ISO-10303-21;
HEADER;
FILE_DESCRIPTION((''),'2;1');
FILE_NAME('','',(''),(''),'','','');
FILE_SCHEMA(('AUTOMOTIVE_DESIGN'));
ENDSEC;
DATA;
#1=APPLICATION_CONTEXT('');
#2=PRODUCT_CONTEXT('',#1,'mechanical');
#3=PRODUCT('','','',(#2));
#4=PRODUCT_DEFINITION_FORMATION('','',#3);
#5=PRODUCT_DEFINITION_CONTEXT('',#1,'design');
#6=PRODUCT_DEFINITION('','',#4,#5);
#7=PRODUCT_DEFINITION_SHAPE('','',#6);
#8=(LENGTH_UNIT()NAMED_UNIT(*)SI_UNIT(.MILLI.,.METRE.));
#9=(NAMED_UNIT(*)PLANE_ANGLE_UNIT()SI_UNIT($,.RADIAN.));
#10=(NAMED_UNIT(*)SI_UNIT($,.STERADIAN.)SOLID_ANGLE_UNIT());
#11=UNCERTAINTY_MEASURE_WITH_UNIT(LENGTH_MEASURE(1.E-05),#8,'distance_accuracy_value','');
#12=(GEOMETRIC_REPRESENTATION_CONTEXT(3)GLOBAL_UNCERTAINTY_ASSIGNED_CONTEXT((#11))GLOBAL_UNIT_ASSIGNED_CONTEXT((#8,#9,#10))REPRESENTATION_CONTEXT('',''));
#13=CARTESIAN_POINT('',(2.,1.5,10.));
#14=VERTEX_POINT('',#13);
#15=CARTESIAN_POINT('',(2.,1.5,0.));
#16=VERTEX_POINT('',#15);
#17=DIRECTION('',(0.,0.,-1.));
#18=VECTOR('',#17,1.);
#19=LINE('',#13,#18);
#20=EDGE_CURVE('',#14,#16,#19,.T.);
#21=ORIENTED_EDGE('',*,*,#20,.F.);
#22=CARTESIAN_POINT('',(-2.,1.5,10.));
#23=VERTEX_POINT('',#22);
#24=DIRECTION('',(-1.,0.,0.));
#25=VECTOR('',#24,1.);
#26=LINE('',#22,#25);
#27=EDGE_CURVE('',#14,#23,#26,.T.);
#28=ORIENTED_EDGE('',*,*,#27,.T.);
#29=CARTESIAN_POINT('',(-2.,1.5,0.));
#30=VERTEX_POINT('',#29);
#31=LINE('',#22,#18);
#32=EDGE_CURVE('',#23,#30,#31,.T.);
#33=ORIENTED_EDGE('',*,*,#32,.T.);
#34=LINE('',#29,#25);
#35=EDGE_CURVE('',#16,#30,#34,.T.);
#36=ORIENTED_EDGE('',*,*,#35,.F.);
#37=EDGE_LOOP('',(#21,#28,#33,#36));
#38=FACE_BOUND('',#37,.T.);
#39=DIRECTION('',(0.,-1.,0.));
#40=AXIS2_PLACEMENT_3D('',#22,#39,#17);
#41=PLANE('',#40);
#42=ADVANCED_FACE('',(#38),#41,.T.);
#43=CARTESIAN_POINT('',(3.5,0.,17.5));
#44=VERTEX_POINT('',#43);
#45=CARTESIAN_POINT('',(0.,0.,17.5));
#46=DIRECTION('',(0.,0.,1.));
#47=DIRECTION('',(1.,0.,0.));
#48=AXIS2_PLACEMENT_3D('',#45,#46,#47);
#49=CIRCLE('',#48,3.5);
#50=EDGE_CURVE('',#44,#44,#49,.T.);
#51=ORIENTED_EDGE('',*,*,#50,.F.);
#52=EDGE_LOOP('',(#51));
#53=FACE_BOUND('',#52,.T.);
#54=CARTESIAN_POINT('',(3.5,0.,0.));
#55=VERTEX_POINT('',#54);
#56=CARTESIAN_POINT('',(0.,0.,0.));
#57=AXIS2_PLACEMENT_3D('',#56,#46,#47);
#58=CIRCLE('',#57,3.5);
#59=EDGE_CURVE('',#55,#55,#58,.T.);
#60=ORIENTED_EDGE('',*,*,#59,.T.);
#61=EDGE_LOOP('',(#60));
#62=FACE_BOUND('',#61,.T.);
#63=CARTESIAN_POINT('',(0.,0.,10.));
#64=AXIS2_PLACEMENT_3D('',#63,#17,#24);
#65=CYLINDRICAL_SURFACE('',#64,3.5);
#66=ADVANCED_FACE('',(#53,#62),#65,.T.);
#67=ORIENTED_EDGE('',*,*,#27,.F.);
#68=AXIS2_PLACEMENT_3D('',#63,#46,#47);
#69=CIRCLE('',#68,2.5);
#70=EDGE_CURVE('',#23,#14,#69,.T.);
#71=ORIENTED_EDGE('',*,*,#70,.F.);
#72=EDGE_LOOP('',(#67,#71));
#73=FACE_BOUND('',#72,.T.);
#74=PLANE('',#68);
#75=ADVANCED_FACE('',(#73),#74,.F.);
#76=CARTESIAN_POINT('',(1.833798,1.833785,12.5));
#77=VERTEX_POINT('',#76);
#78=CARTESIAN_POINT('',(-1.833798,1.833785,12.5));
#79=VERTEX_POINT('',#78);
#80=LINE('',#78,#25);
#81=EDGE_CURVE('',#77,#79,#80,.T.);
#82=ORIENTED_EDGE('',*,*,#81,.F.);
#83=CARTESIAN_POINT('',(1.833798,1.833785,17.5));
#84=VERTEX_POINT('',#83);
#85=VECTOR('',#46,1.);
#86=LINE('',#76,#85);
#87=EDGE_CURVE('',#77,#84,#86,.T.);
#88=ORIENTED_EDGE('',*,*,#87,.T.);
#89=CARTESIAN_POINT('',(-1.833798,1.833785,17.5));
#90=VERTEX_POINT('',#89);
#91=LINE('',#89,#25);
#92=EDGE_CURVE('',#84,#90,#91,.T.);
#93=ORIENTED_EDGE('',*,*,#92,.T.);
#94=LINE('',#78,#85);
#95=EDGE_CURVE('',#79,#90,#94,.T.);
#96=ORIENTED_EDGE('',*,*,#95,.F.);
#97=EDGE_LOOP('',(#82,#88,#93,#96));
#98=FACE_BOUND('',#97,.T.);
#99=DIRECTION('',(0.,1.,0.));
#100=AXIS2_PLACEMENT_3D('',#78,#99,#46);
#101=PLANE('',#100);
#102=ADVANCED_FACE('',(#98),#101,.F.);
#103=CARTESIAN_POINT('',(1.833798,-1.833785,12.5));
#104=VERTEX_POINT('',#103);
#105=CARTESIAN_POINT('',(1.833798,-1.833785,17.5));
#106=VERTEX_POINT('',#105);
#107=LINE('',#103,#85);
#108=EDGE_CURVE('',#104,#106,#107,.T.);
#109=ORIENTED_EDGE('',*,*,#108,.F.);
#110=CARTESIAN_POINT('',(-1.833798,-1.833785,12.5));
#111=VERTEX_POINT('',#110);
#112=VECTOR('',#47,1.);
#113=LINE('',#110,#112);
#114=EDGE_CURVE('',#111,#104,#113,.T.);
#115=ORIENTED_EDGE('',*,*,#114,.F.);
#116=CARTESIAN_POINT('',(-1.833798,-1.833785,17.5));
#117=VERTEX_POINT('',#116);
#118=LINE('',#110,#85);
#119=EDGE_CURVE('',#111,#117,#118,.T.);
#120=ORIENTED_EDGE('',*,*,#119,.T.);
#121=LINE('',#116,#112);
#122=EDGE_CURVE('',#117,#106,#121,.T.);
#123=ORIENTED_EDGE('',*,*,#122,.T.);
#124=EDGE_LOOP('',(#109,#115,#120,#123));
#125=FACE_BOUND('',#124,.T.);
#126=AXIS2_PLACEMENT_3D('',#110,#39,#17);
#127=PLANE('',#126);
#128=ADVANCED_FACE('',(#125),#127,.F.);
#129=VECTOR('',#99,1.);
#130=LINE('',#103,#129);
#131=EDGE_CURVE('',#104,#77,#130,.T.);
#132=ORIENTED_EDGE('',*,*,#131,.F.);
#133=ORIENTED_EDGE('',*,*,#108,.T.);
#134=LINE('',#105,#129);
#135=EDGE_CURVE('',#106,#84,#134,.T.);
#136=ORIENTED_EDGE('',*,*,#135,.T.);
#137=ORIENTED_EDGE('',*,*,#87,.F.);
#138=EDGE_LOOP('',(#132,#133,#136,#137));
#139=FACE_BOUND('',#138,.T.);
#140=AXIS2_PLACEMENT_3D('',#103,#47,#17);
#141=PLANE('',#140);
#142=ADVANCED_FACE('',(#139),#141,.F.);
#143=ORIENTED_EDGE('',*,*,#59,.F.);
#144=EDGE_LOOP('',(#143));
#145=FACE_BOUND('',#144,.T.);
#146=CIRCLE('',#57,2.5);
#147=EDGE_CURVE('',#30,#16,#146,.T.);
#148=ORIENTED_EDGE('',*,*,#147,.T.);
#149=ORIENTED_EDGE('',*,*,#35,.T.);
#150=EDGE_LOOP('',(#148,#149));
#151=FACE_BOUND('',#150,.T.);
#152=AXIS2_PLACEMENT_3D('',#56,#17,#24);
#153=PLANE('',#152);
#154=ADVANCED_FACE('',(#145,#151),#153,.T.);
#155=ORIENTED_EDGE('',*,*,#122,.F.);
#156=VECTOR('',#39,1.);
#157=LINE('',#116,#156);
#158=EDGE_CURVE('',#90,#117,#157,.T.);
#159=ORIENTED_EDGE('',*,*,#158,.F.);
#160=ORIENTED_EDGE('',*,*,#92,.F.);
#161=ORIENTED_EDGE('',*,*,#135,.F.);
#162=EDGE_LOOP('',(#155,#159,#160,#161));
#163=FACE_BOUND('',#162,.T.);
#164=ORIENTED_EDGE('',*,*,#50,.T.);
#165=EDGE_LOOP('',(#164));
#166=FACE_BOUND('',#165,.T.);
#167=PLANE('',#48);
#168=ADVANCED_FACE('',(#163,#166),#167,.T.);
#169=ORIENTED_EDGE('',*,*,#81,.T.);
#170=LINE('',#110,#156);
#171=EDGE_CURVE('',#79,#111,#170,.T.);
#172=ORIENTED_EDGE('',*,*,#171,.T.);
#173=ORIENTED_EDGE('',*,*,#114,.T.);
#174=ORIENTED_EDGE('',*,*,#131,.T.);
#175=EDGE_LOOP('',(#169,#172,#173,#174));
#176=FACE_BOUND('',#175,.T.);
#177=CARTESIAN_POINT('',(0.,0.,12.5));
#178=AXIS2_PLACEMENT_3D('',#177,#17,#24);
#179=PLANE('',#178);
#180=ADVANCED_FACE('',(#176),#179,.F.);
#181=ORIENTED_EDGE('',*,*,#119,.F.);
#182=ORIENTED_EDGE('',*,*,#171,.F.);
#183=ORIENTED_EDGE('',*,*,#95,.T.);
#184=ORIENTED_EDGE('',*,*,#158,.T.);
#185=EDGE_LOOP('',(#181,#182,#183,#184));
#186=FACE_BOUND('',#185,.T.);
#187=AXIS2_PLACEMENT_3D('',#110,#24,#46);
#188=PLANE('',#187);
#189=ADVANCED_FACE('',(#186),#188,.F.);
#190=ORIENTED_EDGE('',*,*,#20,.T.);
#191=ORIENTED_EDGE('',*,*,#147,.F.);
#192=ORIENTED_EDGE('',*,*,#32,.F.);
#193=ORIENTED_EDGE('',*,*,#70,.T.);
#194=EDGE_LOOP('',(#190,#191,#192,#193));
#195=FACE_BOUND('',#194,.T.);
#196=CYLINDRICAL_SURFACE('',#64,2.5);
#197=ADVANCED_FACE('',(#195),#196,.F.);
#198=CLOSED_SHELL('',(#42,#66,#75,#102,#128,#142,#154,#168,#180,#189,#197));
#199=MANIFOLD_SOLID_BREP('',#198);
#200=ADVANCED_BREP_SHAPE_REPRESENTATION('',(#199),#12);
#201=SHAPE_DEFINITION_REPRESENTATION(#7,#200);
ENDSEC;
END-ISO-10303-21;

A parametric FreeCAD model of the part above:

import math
import FreeCAD as App
import Part
import Sketcher
from FreeCAD import Vector
Q = App.Units.Quantity

doc = App.newDocument("Part")
body = doc.addObject("PartDesign::Body", "Body")

# Sketch on XY plane
sketch1 = body.newObject("Sketcher::SketchObject", "Sketch")
sketch1.AttachmentSupport = (doc.getObject("XY_Plane"), [""])
sketch1.MapMode = "FlatFace"
sketch1.addGeometry([
    Part.ArcOfCircle(Part.Circle(Vector(0, 0, 0), Vector(0, 0, 1), 3.5), math.radians(134), math.radians(406)),
    Part.ArcOfCircle(Part.Circle(Vector(0, 0, 0), Vector(0, 0, 1), 3.5), math.radians(46), math.radians(134)),
    Part.ArcOfCircle(Part.Circle(Vector(0, 0, 0), Vector(0, 0, 1), 2.5), math.radians(143), math.radians(397)),
    Part.LineSegment(Vector(-2, 1.5, 0), Vector(2, 1.5, 0)),
], False)
sketch1.addConstraint([
    Sketcher.Constraint("Tangent", 0, 1, 1, 2),
    Sketcher.Constraint("Coincident", 1, 1, 0, 2),
    Sketcher.Constraint("Coincident", 2, 1, 3, 1),
    Sketcher.Constraint("Coincident", 3, 2, 2, 2),
    Sketcher.Constraint("Horizontal", 3),
    Sketcher.Constraint("Coincident", 0, 3, -1, 1),
    Sketcher.Constraint("Coincident", 2, 3, -1, 1),
    Sketcher.Constraint("Horizontal", 0, 1, 1, 1),
    Sketcher.Constraint("Radius", 0, Q("3.5 mm")),
    Sketcher.Constraint("Radius", 2, Q("2.5 mm")),
    Sketcher.Constraint("DistanceX", 3, 1, 3, 2, Q("4 mm")),
    Sketcher.Constraint("DistanceY", 2, 1, 0, 1, Q("1 mm")),
])
pad1 = body.newObject("PartDesign::Pad", "Pad")
pad1.Profile = sketch1
pad1.Length = 10

# Sketch on XY plane
sketch2 = body.newObject("Sketcher::SketchObject", "Sketch001")
sketch2.AttachmentSupport = (doc.getObject("XY_Plane"), [""])
sketch2.MapMode = "FlatFace"
sketch2.AttachmentOffset = App.Placement(Vector(0, 0, 10), App.Rotation())
sketch2.addGeometry(Part.Circle(Vector(0, 0, 0), Vector(0, 0, 1), 3.5), False)
sketch2.addConstraint([
    Sketcher.Constraint("Coincident", 0, 3, -1, 1),
    Sketcher.Constraint("Diameter", 0, Q("7 mm")),
])
pad2 = body.newObject("PartDesign::Pad", "Pad001")
pad2.Profile = sketch2
pad2.Length = 7.5

# Sketch on XY plane
sketch3 = body.newObject("Sketcher::SketchObject", "Sketch002")
sketch3.AttachmentSupport = (doc.getObject("XY_Plane"), [""])
sketch3.MapMode = "FlatFace"
sketch3.AttachmentOffset = App.Placement(Vector(0, 0, 17.5), App.Rotation())
sketch3.addGeometry([
    Part.LineSegment(Vector(-1.8, 1.8, 0), Vector(-1.8, -1.8, 0)),
    Part.LineSegment(Vector(-1.8, -1.8, 0), Vector(1.8, -1.8, 0)),
    Part.LineSegment(Vector(1.8, -1.8, 0), Vector(1.8, 1.8, 0)),
    Part.LineSegment(Vector(1.8, 1.8, 0), Vector(-1.8, 1.8, 0)),
], False)
sketch3.addConstraint([
    Sketcher.Constraint("Coincident", 0, 2, 1, 1),
    Sketcher.Constraint("Coincident", 1, 2, 2, 1),
    Sketcher.Constraint("Coincident", 2, 2, 3, 1),
    Sketcher.Constraint("Coincident", 3, 2, 0, 1),
    Sketcher.Constraint("Vertical", 0),
    Sketcher.Constraint("Horizontal", 1),
    Sketcher.Constraint("Vertical", 2),
    Sketcher.Constraint("Horizontal", 3),
    Sketcher.Constraint("Symmetric", 0, 2, 2, 2, -1, 1),
    Sketcher.Constraint("DistanceY", 0, 2, 0, 1, Q("3.667569 mm")),
    Sketcher.Constraint("DistanceX", 0, 2, -1, 1, Q("1.833798 mm")),
])
pocket1 = body.newObject("PartDesign::Pocket", "Pocket")
pocket1.Profile = sketch3
pocket1.Length = 5

doc.recompute()
